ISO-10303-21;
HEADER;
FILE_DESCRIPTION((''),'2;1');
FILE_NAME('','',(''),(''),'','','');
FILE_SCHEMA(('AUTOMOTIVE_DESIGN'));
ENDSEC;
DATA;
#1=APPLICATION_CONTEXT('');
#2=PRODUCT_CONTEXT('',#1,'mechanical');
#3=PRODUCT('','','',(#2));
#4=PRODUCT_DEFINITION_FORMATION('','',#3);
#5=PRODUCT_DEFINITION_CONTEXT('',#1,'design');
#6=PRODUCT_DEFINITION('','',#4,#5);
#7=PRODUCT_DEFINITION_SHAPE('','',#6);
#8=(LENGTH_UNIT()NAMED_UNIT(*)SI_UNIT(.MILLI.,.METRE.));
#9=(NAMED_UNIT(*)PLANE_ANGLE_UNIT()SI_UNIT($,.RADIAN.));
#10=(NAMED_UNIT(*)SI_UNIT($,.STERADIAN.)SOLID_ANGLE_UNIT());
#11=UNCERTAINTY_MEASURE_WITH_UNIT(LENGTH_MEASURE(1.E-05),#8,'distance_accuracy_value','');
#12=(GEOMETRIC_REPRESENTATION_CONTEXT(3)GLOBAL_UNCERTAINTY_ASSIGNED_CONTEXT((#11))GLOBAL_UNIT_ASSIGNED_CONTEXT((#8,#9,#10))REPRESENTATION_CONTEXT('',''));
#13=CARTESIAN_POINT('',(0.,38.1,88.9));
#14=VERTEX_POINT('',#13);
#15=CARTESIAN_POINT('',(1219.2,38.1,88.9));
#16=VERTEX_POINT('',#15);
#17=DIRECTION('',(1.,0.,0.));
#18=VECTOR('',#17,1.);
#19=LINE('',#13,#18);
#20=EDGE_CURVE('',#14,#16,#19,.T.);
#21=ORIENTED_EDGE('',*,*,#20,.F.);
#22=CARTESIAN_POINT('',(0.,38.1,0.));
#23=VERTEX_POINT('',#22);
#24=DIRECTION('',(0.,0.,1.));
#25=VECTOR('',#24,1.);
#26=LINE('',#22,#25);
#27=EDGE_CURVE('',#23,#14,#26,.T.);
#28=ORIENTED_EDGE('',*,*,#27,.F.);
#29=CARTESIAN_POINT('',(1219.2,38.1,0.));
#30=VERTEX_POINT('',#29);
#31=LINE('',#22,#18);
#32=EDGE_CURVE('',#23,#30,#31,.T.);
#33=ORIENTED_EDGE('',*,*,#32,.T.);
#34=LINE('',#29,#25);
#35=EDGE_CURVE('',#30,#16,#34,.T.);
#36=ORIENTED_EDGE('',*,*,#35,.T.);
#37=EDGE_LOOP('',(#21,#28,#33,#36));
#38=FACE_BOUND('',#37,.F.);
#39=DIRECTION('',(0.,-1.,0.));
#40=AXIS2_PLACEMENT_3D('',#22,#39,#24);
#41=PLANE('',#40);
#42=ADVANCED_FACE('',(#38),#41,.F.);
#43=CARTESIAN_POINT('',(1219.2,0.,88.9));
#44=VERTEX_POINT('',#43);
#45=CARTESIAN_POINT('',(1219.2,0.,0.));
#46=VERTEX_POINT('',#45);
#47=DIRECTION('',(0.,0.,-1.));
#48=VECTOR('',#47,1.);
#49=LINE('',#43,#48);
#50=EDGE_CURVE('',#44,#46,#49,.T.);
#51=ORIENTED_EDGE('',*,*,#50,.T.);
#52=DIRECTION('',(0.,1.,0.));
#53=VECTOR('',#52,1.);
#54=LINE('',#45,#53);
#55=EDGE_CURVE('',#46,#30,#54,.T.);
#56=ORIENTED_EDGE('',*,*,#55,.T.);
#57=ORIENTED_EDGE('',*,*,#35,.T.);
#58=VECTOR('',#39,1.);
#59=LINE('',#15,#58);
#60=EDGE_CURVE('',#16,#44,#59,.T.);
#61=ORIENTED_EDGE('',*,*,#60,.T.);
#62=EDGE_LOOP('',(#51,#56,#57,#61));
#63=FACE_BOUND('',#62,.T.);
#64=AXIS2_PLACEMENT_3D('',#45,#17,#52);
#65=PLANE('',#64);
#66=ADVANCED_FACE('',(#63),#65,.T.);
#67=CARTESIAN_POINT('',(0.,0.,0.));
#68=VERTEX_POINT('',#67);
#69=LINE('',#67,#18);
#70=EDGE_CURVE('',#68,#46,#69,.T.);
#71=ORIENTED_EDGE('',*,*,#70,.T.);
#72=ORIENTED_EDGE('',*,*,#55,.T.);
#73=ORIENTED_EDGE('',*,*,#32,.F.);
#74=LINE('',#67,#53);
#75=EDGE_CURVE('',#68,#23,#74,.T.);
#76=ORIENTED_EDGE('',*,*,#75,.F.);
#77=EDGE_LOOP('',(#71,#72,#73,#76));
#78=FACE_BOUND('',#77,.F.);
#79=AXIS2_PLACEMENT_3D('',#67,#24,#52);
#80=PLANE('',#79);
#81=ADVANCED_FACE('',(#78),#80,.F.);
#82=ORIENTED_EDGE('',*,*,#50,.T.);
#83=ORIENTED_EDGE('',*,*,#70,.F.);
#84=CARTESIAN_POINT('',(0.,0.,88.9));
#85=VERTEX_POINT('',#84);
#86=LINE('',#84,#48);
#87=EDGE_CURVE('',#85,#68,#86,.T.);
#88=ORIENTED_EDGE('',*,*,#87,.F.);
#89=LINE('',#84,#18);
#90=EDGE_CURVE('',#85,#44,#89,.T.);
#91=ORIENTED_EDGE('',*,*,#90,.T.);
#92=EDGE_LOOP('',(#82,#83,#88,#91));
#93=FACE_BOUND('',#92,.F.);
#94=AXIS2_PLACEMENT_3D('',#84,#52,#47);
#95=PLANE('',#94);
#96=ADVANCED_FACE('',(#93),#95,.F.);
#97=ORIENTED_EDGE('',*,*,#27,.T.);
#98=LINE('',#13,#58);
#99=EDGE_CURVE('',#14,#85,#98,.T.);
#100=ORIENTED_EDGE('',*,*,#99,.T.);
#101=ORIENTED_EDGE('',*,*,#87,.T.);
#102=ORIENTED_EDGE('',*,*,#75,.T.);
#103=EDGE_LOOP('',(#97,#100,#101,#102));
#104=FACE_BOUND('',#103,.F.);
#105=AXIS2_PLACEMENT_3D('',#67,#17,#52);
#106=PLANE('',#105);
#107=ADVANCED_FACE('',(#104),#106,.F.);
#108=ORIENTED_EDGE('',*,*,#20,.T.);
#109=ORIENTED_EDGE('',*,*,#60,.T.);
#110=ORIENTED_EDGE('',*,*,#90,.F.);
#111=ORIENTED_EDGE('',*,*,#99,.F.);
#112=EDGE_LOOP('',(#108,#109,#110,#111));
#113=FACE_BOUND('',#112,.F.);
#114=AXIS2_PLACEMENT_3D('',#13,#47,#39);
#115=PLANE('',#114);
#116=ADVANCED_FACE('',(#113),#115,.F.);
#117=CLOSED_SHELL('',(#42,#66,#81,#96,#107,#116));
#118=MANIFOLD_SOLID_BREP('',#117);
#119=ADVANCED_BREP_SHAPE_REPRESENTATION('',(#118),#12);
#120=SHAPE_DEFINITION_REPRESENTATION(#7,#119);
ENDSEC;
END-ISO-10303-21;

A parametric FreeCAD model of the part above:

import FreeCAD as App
import Part
import Sketcher
from FreeCAD import Vector
Q = App.Units.Quantity

doc = App.newDocument("Part")
body = doc.addObject("PartDesign::Body", "Body")

# Sketch on YZ plane
sketch1 = doc.addObject("Sketcher::SketchObject", "Sketch")
body.addObject(sketch1)
sketch1.AttachmentSupport = (doc.YZ_Plane, [""])
sketch1.MapMode = "FlatFace"
sketch1.addGeometry([
    Part.LineSegment(Vector(0, 88.9, 0), Vector(0, 0, 0)),
    Part.LineSegment(Vector(0, 0, 0), Vector(38.1, 0, 0)),
    Part.LineSegment(Vector(38.1, 0, 0), Vector(38.1, 88.9, 0)),
    Part.LineSegment(Vector(38.1, 88.9, 0), Vector(0, 88.9, 0)),
], False)
sketch1.addConstraint([
    Sketcher.Constraint("Coincident", 0, 2, 1, 1),
    Sketcher.Constraint("Coincident", 1, 2, 2, 1),
    Sketcher.Constraint("Coincident", 2, 2, 3, 1),
    Sketcher.Constraint("Coincident", 3, 2, 0, 1),
    Sketcher.Constraint("Vertical", 0),
    Sketcher.Constraint("Horizontal", 1),
    Sketcher.Constraint("Vertical", 2),
    Sketcher.Constraint("Horizontal", 3),
    Sketcher.Constraint("Coincident", 0, 2, -1, 1),
    Sketcher.Constraint("DistanceX", 1, 1, 1, 2, Q("1.5 in")),
    Sketcher.Constraint("DistanceY", 0, 2, 0, 1, Q("3.5 in")),
])
pad1 = doc.addObject("PartDesign::Pad", "Pad")
body.addObject(pad1)
pad1.Profile = sketch1
pad1.Length = Q("48 in")

doc.recompute()
